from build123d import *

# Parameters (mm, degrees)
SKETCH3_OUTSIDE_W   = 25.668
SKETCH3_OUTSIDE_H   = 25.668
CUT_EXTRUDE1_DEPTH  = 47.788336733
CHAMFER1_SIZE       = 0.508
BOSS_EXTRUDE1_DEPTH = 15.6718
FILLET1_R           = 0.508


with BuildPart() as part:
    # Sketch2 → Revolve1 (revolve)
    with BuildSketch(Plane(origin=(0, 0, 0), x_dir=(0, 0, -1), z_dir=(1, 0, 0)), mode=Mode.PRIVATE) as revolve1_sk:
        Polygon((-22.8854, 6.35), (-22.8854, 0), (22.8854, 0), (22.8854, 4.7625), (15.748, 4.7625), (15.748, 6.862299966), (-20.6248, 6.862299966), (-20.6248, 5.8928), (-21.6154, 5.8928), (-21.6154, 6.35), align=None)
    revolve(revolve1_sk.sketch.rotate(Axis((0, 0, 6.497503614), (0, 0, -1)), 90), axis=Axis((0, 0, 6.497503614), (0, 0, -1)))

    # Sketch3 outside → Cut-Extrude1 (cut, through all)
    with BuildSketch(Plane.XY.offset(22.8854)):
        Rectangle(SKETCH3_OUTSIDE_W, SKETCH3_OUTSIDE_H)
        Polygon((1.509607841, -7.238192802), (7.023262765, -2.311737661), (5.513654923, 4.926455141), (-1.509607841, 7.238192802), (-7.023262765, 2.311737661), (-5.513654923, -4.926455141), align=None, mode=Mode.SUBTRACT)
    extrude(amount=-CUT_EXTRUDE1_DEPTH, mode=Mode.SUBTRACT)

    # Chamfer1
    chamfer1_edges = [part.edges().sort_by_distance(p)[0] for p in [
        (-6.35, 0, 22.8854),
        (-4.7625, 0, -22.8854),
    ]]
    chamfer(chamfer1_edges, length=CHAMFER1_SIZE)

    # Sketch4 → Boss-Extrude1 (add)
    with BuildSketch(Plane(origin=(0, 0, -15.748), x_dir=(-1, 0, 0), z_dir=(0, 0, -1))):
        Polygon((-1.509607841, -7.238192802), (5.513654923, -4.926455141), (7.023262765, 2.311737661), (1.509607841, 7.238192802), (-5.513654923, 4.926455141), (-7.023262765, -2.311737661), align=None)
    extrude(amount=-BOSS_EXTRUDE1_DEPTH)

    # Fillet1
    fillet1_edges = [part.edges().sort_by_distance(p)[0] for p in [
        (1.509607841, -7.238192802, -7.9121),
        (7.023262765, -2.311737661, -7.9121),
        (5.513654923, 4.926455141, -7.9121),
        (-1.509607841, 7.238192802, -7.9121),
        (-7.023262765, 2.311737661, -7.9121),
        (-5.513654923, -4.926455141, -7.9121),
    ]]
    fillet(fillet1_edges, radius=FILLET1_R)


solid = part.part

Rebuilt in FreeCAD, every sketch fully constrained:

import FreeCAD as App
import Part
import Sketcher
from FreeCAD import Vector
Q = App.Units.Quantity


def edges_at(feature, points):
    """Names of the edges that pass closest to the given points."""
    edges = feature.Shape.Edges
    near = lambda p: min(range(len(edges)), key=lambda i: edges[i].distToShape(Part.Vertex(*p))[0])
    return sorted({f"Edge{near(p) + 1}" for p in points})


def add_polygon(sketch, points):
    """Adds a closed chain of lines whose ends are joined by coincident constraints."""
    first, n = sketch.GeometryCount, len(points)
    for a, b in zip(points, points[1:] + points[:1]):
        sketch.addGeometry(Part.LineSegment(App.Vector(*a, 0), App.Vector(*b, 0)), False)
    for i in range(n):
        sketch.addConstraint(Sketcher.Constraint("Coincident", first + i, 2, first + (i + 1) % n, 1))

doc = App.newDocument("Part")
params = doc.addObject("Spreadsheet::Sheet", "Params")
for row, (alias, value) in enumerate([
    ("sketch1_width", "0.25 in"),
    ("sketch1_height", "0.05 in"),
    ("sketch1_width2", "0.1875 in"),
    ("sketch1_width3", "0.018 in"),
    ("sketch1_height2", "1.802 in"),
    ("revolution_angle", "360 deg"),
    ("chamfer_size", "0.02 in"),
    ("pad1_length", "0.617 in"),
    ("fillet_radius", "0.02 in"),
], start=1):
    params.set(f"A{row}", alias)
    params.set(f"B{row}", "=" + value)
    params.setAlias(f"B{row}", alias)

body = doc.addObject("PartDesign::Body", "Body")

sketch1 = doc.addObject("Sketcher::SketchObject", "Sketch")
body.addObject(sketch1)
sketch1.AttachmentSupport = (doc.YZ_Plane, [""])
sketch1.MapMode = "FlatFace"
add_polygon(sketch1, [(6.35, 22.89), (0, 22.89), (0, -22.89), (4.76, -22.89), (4.76, -15.75), (6.86, -15.75), (6.86, 20.62), (5.89, 20.62), (5.89, 21.62), (6.35, 21.62)])
sketch1.addConstraint(Sketcher.Constraint("Horizontal", 0))
sketch1.addConstraint(Sketcher.Constraint("Vertical", 1))
sketch1.addConstraint(Sketcher.Constraint("Horizontal", 2))
sketch1.addConstraint(Sketcher.Constraint("Vertical", 3))
sketch1.addConstraint(Sketcher.Constraint("Horizontal", 4))
sketch1.addConstraint(Sketcher.Constraint("Vertical", 5))
sketch1.addConstraint(Sketcher.Constraint("Horizontal", 6))
sketch1.addConstraint(Sketcher.Constraint("Vertical", 7))
sketch1.addConstraint(Sketcher.Constraint("Horizontal", 8))
sketch1.addConstraint(Sketcher.Constraint("Vertical", 9))
sketch1.addConstraint(Sketcher.Constraint("Symmetric", 0, 2, 1, 2, -1, 1))
sketch1.addConstraint(Sketcher.Constraint("DistanceX", 0, 2, 0, 1, Q("0.25 in")))
sketch1.addConstraint(Sketcher.Constraint("DistanceY", 9, 1, 9, 2, Q("0.05 in")))
sketch1.addConstraint(Sketcher.Constraint("DistanceX", 2, 1, 2, 2, Q("0.1875 in")))
sketch1.addConstraint(Sketcher.Constraint("DistanceX", 8, 1, 8, 2, Q("0.018 in")))
sketch1.addConstraint(Sketcher.Constraint("DistanceY", 1, 2, 1, 1, Q("1.802 in")))
sketch1.addConstraint(Sketcher.Constraint("DistanceY", 3, 1, 3, 2, Q("0.281 in")))
sketch1.addConstraint(Sketcher.Constraint("DistanceY", 5, 1, 5, 2, Q("1.432 in")))
sketch1.addConstraint(Sketcher.Constraint("DistanceX", 4, 1, 4, 2, Q("2.0998 mm")))
sketch1.setExpression("Constraints[21]", "Params.sketch1_width")
sketch1.setExpression("Constraints[22]", "Params.sketch1_height")
sketch1.setExpression("Constraints[23]", "Params.sketch1_width2")
sketch1.setExpression("Constraints[24]", "Params.sketch1_width3")
sketch1.setExpression("Constraints[25]", "Params.sketch1_height2")
revolution = doc.addObject("PartDesign::Revolution", "Revolution")
body.addObject(revolution)
revolution.Profile = sketch1
revolution.ReferenceAxis = (sketch1, ["V_Axis"])
revolution.setExpression("Angle", "Params.revolution_angle")

sketch2 = doc.addObject("Sketcher::SketchObject", "Sketch001")
body.addObject(sketch2)
sketch2.AttachmentSupport = (doc.XY_Plane, [""])
sketch2.MapMode = "FlatFace"
sketch2.AttachmentOffset = App.Placement(Vector(0, 0, 0.901 * 25.4), App.Rotation())
add_polygon(sketch2, [(-13, 13), (-13, -13), (13, -13), (13, 13)])
add_polygon(sketch2, [(7, -2), (2, -7), (-6, -5), (-7, 2), (-2, 7), (6, 5)])
sketch2.addConstraint(Sketcher.Constraint("Vertical", 0))
sketch2.addConstraint(Sketcher.Constraint("Horizontal", 1))
sketch2.addConstraint(Sketcher.Constraint("Vertical", 2))
sketch2.addConstraint(Sketcher.Constraint("Horizontal", 3))
sketch2.addConstraint(Sketcher.Constraint("Symmetric", 0, 2, 2, 2, -1, 1))
sketch2.addConstraint(Sketcher.Constraint("Symmetric", 4, 2, 7, 2, -1, 1))
sketch2.addConstraint(Sketcher.Constraint("Symmetric", 5, 2, 8, 2, -1, 1))
sketch2.addConstraint(Sketcher.Constraint("Symmetric", 6, 2, 9, 2, -1, 1))
sketch2.addConstraint(Sketcher.Constraint("Equal", 3, 0))
sketch2.addConstraint(Sketcher.Constraint("Equal", 4, 5))
sketch2.addConstraint(Sketcher.Constraint("Equal", 5, 6))
sketch2.addConstraint(Sketcher.Constraint("Distance", 4, Q("0.2911 in")))
sketch2.addConstraint(Sketcher.Constraint("DistanceX", 1, 1, 1, 2, Q("25.668 mm")))
sketch2.addConstraint(Sketcher.Constraint("DistanceX", 6, 2, 4, 2, Q("8.532871 mm")))
sketch2.addConstraint(Sketcher.Constraint("DistanceY", 4, 2, 6, 2, Q("9.54993 mm")))
sketch2.addConstraint(Sketcher.Constraint("DistanceX", 5, 2, 8, 2, Q("11.02731 mm")))
pocket1 = doc.addObject("PartDesign::Pocket", "Pocket")
body.addObject(pocket1)
pocket1.Profile = sketch2
pocket1.Type = "ThroughAll"
doc.recompute()

chamfer = doc.addObject("PartDesign::Chamfer", "Chamfer")
body.addObject(chamfer)
chamfer.Base = (pocket1, edges_at(pocket1, [(-6.35, 0, 22.885), (-4.763, 0, -22.885)]))
chamfer.setExpression("Size", "Params.chamfer_size")

sketch3 = doc.addObject("Sketcher::SketchObject", "Sketch002")
body.addObject(sketch3)
sketch3.AttachmentSupport = (doc.XY_Plane, [""])
sketch3.MapMode = "FlatFace"
sketch3.AttachmentOffset = App.Placement(Vector(0, 0, -0.62 * 25.4), App.Rotation())
add_polygon(sketch3, [(2, -7), (-6, -5), (-7, 2), (-2, 7), (6, 5), (7, -2)])
sketch3.addConstraint(Sketcher.Constraint("Symmetric", 0, 2, 3, 2, -1, 1))
sketch3.addConstraint(Sketcher.Constraint("Symmetric", 1, 2, 4, 2, -1, 1))
sketch3.addConstraint(Sketcher.Constraint("Symmetric", 2, 2, 5, 2, -1, 1))
sketch3.addConstraint(Sketcher.Constraint("Equal", 0, 1))
sketch3.addConstraint(Sketcher.Constraint("Equal", 1, 2))
sketch3.addConstraint(Sketcher.Constraint("Distance", 0, Q("0.2911 in")))
sketch3.addConstraint(Sketcher.Constraint("DistanceX", 0, 2, 3, 2, Q("11.02731 mm")))
sketch3.addConstraint(Sketcher.Constraint("DistanceY", 0, 2, 3, 2, Q("9.85291 mm")))
sketch3.addConstraint(Sketcher.Constraint("DistanceX", 2, 2, 4, 2, Q("8.532871 mm")))
pad1 = doc.addObject("PartDesign::Pad", "Pad")
body.addObject(pad1)
pad1.Profile = sketch3
pad1.setExpression("Length", "Params.pad1_length")
doc.recompute()

fillet = doc.addObject("PartDesign::Fillet", "Fillet")
body.addObject(fillet)
fillet.Base = (pad1, edges_at(pad1, [
    (1.51, -7.238, -7.912),
    (7.023, -2.312, -7.912),
    (5.514, 4.926, -7.912),
    (-1.51, 7.238, -7.912),
    (-7.023, 2.312, -7.912),
    (-5.514, -4.926, -7.912),
]))
fillet.setExpression("Radius", "Params.fillet_radius")

doc.recompute()
